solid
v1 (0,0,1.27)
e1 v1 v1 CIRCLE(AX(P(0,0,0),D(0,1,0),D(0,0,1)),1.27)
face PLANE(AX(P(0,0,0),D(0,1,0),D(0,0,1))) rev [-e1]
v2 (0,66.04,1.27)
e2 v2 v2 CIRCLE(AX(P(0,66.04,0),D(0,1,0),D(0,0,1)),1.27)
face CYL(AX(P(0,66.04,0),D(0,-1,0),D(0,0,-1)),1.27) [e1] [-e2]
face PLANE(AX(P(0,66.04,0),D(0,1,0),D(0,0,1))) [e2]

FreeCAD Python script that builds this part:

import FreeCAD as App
import Part
import Sketcher

V = App.Vector
Q = App.Units.Quantity

doc = App.newDocument("Part")
body = doc.addObject("PartDesign::Body", "Body")

# Sketch on XZ plane
sketch1 = body.newObject("Sketcher::SketchObject", "Sketch")
sketch1.AttachmentSupport = (doc.getObject("XZ_Plane"), [""])
sketch1.MapMode = "FlatFace"
sketch1.addGeometry(Part.Circle(V(0, 0, 0), V(0, 0, 1), 1.3), False)
sketch1.addConstraint(Sketcher.Constraint("Coincident", 0, 3, -1, 1))
sketch1.addConstraint(Sketcher.Constraint("Diameter", 0, Q("0.1 in")))
pad1 = body.newObject("PartDesign::Pad", "Pad")
pad1.Profile = sketch1
pad1.Length = Q("2.6 in")
pad1.Reversed = True

doc.recompute()
